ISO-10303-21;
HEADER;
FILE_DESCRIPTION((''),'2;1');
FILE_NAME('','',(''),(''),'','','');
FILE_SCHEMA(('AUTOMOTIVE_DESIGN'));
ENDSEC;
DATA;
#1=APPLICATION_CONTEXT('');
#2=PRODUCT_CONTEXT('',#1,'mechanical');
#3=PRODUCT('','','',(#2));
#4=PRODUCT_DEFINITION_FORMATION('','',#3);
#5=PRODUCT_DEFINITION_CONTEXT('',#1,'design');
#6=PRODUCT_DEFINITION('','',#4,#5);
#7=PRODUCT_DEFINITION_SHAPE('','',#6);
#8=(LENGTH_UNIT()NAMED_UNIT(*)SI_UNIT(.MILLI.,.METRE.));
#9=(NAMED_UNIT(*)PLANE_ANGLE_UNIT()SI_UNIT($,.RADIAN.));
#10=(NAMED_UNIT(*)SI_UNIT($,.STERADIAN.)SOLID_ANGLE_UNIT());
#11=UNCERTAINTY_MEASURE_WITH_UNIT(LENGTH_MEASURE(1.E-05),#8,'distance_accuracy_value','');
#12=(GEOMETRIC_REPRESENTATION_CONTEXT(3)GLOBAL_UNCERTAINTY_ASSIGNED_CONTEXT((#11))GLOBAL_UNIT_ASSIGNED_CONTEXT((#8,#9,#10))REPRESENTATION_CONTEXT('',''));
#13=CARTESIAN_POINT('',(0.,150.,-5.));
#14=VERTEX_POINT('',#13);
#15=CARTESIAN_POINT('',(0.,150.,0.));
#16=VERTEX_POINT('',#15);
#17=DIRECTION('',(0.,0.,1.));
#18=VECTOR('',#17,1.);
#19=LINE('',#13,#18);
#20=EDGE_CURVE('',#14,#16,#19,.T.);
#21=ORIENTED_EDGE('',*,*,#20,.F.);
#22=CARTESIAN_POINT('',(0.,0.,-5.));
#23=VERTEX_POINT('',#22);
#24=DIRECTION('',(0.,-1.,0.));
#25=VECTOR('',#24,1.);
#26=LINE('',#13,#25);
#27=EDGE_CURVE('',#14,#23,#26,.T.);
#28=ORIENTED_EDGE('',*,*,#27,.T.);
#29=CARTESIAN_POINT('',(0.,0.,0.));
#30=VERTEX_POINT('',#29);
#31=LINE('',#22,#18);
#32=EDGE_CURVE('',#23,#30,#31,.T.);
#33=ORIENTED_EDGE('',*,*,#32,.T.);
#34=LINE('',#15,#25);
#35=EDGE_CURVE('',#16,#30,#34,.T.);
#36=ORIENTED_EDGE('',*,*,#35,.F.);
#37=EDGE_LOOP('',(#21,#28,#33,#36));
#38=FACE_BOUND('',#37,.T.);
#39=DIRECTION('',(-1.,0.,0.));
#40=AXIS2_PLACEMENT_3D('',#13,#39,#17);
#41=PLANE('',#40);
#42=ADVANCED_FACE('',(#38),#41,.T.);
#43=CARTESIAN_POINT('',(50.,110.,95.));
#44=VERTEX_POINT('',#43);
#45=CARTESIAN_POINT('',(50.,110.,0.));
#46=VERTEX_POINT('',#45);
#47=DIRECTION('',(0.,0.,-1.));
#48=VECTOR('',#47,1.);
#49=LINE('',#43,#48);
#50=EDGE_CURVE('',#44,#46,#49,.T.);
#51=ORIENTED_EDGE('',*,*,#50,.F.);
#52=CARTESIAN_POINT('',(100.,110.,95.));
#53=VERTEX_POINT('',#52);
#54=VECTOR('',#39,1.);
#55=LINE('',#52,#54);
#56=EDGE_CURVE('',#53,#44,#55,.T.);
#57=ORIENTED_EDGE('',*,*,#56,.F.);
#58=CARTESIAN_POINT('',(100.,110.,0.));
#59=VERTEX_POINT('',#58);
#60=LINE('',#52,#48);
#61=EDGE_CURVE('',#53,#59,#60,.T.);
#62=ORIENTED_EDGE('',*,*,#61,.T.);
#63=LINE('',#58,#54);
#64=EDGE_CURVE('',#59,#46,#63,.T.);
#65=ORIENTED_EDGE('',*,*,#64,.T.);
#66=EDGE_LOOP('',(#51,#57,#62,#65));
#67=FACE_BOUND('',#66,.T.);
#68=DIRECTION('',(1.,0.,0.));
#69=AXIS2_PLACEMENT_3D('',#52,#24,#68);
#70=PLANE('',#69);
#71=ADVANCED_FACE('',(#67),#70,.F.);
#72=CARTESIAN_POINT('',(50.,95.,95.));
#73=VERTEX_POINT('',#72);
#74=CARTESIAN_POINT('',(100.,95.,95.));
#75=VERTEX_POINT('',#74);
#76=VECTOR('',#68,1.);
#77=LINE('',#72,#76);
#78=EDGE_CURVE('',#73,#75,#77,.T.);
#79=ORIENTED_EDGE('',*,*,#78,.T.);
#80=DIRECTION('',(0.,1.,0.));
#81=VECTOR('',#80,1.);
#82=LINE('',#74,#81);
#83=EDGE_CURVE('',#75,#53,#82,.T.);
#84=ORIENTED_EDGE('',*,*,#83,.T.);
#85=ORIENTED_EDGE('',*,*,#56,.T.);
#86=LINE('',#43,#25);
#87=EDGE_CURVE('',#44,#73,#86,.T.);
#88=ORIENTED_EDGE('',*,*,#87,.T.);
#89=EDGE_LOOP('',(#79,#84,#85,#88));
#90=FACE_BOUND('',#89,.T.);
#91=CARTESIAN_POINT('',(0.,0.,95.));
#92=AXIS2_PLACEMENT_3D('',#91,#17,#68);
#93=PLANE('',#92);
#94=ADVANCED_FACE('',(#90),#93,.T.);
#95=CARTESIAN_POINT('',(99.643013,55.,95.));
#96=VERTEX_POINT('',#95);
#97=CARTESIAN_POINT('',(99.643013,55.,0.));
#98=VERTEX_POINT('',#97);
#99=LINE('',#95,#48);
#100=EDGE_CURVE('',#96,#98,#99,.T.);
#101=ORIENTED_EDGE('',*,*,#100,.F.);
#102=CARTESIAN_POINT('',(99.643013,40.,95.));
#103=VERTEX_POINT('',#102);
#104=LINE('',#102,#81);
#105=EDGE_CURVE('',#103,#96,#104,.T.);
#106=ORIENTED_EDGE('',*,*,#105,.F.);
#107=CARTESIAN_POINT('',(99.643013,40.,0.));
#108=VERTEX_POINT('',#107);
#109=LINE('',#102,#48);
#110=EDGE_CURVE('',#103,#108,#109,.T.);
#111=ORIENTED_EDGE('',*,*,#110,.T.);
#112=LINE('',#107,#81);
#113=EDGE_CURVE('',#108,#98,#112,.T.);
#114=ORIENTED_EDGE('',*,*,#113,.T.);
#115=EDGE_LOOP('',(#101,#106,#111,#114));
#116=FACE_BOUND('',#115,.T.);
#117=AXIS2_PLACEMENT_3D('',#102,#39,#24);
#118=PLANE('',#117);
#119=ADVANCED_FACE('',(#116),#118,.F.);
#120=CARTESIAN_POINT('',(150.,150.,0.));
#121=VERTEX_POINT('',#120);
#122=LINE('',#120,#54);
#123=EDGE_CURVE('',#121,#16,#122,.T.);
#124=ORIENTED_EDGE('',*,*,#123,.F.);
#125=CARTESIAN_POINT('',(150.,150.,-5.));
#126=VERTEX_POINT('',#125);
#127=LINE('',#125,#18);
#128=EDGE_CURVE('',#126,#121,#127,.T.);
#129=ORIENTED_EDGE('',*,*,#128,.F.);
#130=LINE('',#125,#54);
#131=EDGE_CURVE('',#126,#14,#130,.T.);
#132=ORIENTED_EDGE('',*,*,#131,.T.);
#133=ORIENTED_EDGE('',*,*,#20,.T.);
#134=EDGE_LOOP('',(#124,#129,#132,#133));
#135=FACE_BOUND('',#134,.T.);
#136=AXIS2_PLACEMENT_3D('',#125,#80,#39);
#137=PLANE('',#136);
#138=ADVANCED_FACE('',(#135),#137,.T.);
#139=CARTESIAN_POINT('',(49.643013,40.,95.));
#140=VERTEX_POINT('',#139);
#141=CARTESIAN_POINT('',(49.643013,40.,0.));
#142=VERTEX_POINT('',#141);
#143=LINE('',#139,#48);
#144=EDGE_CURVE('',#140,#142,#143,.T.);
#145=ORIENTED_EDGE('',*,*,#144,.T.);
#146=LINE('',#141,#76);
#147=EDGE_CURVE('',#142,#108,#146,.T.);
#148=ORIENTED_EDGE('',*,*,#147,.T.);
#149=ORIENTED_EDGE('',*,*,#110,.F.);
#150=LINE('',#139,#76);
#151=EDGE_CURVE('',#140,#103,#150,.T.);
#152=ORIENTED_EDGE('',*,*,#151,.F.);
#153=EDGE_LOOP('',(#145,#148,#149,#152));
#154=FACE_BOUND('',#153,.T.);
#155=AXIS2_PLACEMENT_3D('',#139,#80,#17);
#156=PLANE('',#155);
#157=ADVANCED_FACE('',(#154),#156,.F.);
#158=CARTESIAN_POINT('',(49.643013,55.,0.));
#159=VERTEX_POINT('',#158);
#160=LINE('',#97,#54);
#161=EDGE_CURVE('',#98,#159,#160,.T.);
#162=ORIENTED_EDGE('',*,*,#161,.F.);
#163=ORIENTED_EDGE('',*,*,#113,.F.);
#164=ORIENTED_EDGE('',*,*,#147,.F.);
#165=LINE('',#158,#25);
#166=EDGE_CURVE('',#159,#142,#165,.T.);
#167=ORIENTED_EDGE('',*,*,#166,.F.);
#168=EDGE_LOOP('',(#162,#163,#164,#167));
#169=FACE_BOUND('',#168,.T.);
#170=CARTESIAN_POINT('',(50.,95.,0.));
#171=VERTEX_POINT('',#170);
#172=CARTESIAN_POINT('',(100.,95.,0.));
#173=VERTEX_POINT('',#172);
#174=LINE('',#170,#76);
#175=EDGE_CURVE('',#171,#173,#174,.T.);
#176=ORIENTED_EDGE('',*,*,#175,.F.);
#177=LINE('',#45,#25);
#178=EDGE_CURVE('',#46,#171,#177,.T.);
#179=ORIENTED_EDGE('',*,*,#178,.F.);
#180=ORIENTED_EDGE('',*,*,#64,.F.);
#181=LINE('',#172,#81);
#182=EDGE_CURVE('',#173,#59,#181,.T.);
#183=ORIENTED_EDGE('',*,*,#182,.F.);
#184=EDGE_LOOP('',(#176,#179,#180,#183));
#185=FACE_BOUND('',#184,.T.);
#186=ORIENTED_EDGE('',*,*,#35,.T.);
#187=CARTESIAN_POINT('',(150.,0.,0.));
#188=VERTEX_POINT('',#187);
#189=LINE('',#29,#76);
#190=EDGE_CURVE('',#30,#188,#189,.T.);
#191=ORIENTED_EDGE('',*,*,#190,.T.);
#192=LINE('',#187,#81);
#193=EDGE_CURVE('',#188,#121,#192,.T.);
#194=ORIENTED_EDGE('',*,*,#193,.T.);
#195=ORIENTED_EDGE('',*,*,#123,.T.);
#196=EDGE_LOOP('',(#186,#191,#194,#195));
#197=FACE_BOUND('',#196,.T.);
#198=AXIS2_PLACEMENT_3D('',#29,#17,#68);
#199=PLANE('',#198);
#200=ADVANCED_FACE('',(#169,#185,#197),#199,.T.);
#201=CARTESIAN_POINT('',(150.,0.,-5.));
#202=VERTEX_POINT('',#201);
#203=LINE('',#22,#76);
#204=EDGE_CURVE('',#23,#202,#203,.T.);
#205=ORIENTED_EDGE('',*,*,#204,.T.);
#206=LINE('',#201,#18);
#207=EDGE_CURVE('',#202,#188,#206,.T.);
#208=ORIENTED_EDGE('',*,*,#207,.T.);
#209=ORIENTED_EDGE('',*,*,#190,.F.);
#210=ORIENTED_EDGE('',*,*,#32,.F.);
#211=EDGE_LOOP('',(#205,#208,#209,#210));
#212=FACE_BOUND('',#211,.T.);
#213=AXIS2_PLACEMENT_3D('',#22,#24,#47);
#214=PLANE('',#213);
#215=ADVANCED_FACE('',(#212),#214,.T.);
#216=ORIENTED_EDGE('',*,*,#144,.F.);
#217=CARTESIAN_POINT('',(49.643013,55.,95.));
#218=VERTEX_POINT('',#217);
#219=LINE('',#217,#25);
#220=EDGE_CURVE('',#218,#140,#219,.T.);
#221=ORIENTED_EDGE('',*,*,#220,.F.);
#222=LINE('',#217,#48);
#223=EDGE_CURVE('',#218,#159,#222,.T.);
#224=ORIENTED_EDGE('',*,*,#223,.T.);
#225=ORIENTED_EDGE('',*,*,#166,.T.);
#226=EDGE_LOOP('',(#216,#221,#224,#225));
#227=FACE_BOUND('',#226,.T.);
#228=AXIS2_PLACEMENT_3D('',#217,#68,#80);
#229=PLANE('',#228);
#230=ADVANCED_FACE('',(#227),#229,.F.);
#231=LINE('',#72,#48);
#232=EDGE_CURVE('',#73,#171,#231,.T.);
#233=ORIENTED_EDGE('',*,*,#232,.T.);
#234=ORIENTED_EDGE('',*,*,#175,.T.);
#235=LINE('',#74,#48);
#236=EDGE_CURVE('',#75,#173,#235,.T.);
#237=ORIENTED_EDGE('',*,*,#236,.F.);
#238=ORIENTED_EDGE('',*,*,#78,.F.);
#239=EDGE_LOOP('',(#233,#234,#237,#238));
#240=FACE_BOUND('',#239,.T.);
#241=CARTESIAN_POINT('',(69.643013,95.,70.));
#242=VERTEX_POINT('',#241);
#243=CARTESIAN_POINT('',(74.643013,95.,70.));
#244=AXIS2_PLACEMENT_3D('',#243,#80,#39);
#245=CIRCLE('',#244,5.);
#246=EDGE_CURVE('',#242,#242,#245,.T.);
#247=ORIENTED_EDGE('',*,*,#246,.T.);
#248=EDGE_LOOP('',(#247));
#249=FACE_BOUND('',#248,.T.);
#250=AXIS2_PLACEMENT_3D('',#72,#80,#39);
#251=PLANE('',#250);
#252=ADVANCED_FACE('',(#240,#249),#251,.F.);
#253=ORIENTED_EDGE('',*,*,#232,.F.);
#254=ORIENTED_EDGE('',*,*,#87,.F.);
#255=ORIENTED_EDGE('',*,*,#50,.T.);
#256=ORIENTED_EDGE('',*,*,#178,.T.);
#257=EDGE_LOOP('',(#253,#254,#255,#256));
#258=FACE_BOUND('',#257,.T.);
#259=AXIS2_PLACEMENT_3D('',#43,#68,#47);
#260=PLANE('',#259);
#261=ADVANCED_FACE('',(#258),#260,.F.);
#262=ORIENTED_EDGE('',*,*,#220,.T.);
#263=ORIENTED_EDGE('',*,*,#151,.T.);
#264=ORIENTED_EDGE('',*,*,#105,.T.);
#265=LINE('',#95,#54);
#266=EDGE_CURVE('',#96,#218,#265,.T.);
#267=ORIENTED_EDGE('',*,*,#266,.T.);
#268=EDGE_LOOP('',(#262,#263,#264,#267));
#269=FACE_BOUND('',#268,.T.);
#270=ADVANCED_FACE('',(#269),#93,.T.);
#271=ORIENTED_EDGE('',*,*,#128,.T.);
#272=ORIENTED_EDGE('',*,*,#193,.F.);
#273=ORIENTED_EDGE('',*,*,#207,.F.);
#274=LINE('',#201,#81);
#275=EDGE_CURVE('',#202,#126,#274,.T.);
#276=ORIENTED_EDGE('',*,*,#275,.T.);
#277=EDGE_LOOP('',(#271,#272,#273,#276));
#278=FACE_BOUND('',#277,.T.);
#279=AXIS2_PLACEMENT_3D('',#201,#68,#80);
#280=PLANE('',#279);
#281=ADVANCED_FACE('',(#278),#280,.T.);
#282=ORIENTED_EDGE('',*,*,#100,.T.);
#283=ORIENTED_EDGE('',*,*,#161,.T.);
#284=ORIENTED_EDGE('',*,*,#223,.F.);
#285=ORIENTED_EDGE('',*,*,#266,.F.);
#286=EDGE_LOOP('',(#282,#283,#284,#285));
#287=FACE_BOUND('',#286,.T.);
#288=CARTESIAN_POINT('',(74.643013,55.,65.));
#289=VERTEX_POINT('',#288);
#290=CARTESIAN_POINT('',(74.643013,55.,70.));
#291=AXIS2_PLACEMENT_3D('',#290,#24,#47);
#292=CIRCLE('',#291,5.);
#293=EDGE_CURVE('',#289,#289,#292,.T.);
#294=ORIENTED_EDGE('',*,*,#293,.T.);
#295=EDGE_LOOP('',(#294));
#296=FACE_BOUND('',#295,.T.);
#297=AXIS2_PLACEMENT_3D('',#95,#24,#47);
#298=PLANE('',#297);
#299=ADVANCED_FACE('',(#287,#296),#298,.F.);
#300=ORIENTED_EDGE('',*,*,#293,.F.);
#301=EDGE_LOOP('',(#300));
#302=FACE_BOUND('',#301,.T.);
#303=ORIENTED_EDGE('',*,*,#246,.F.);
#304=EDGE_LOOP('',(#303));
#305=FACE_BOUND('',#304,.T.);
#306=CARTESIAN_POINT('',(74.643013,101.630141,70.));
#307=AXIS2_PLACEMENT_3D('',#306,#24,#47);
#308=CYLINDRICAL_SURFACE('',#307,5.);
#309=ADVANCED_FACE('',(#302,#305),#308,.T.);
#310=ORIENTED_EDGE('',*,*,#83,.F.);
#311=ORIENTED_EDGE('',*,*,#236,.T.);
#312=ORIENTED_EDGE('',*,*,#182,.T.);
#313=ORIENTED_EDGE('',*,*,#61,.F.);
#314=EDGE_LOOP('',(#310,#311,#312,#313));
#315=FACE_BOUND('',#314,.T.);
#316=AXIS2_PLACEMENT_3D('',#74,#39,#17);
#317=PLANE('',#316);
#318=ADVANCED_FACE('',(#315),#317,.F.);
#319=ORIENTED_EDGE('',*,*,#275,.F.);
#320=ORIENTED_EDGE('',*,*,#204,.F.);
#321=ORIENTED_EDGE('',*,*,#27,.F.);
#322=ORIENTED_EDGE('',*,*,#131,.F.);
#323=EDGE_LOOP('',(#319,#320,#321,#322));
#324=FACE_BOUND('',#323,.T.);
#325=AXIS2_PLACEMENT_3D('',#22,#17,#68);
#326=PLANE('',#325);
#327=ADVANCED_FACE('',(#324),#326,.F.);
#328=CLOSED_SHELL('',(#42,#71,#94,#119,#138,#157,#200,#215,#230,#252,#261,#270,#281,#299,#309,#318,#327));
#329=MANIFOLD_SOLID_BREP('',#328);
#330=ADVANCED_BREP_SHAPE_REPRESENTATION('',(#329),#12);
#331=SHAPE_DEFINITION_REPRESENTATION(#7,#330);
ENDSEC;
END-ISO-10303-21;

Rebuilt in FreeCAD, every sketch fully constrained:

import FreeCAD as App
import Part
import Sketcher
Q = App.Units.Quantity


def add_polygon(sketch, points):
    """Adds a closed chain of lines whose ends are joined by coincident constraints."""
    first, n = sketch.GeometryCount, len(points)
    for a, b in zip(points, points[1:] + points[:1]):
        sketch.addGeometry(Part.LineSegment(App.Vector(*a, 0), App.Vector(*b, 0)), False)
    for i in range(n):
        sketch.addConstraint(Sketcher.Constraint("Coincident", first + i, 2, first + (i + 1) % n, 1))

doc = App.newDocument("Part")
params = doc.addObject("Spreadsheet::Sheet", "Params")
for row, (alias, value) in enumerate([
    ("sketch1_width", "150 mm"),
    ("pad1_length", "5 mm"),
    ("sketch2_width", "50 mm"),
    ("sketch2_height", "15 mm"),
    ("pad2_length", "95 mm"),
    ("sketch3_diameter", "10 mm"),
    ("pad3_length", "61.630141 mm"),
], start=1):
    params.set(f"A{row}", alias)
    params.set(f"B{row}", "=" + value)
    params.setAlias(f"B{row}", alias)

body = doc.addObject("PartDesign::Body", "Body")

# Sketch on XY plane
sketch1 = body.newObject("Sketcher::SketchObject", "Sketch")
sketch1.AttachmentSupport = (doc.getObject("XY_Plane"), [""])
sketch1.MapMode = "FlatFace"
add_polygon(sketch1, [(0, 150), (0, 0), (150, 0), (150, 150)])  # lines 0-3
sketch1.addConstraint(Sketcher.Constraint("Vertical", 0))
sketch1.addConstraint(Sketcher.Constraint("Horizontal", 1))
sketch1.addConstraint(Sketcher.Constraint("Vertical", 2))
sketch1.addConstraint(Sketcher.Constraint("Horizontal", 3))
sketch1.addConstraint(Sketcher.Constraint("Coincident", 0, 2, -1, 1))
sketch1.addConstraint(Sketcher.Constraint("Equal", 3, 0))
sketch1.addConstraint(Sketcher.Constraint("DistanceX", 1, 1, 1, 2, Q("150 mm")))
sketch1.setExpression("Constraints[10]", "Params.sketch1_width")
pad1 = body.newObject("PartDesign::Pad", "Pad")
pad1.Profile = sketch1
pad1.setExpression("Length", "Params.pad1_length")
pad1.Reversed = True

# Sketch on XY plane
sketch2 = body.newObject("Sketcher::SketchObject", "Sketch001")
sketch2.AttachmentSupport = (doc.getObject("XY_Plane"), [""])
sketch2.MapMode = "FlatFace"
add_polygon(sketch2, [(50, 55), (50, 40), (100, 40), (100, 55)])  # lines 0-3
add_polygon(sketch2, [(50, 110), (50, 95), (100, 95), (100, 110)])  # lines 4-7
sketch2.addConstraint(Sketcher.Constraint("Vertical", 0))
sketch2.addConstraint(Sketcher.Constraint("Horizontal", 1))
sketch2.addConstraint(Sketcher.Constraint("Vertical", 2))
sketch2.addConstraint(Sketcher.Constraint("Horizontal", 3))
sketch2.addConstraint(Sketcher.Constraint("Vertical", 4))
sketch2.addConstraint(Sketcher.Constraint("Horizontal", 5))
sketch2.addConstraint(Sketcher.Constraint("Vertical", 6))
sketch2.addConstraint(Sketcher.Constraint("Horizontal", 7))
sketch2.addConstraint(Sketcher.Constraint("Equal", 3, 5))
sketch2.addConstraint(Sketcher.Constraint("Equal", 2, 4))
sketch2.addConstraint(Sketcher.Constraint("DistanceX", 1, 1, 1, 2, Q("50 mm")))
sketch2.addConstraint(Sketcher.Constraint("DistanceY", 0, 2, 0, 1, Q("15 mm")))
sketch2.addConstraint(Sketcher.Constraint("DistanceY", -1, 1, 0, 2, Q("40 mm")))
sketch2.addConstraint(Sketcher.Constraint("DistanceX", -1, 1, 4, 2, Q("50 mm")))
sketch2.addConstraint(Sketcher.Constraint("DistanceY", -1, 1, 4, 2, Q("95 mm")))
sketch2.addConstraint(Sketcher.Constraint("DistanceX", -1, 1, 0, 2, Q("49.643013 mm")))
sketch2.setExpression("Constraints[18]", "Params.sketch2_width")
sketch2.setExpression("Constraints[19]", "Params.sketch2_height")
pad2 = body.newObject("PartDesign::Pad", "Pad001")
pad2.Profile = sketch2
pad2.setExpression("Length", "Params.pad2_length")

# Sketch on XZ plane
sketch3 = body.newObject("Sketcher::SketchObject", "Sketch002")
sketch3.AttachmentSupport = (doc.getObject("XZ_Plane"), [""])
sketch3.MapMode = "FlatFace"
sketch3.AttachmentOffset = App.Placement(App.Vector(0, 0, -40), App.Rotation())
sketch3.addGeometry(Part.Circle(App.Vector(75, 70, 0), App.Vector(0, 0, 1), 5), False)
sketch3.addConstraint(Sketcher.Constraint("Diameter", 0, Q("10 mm")))
sketch3.addConstraint(Sketcher.Constraint("DistanceY", -1, 1, 0, 3, Q("70 mm")))
sketch3.addConstraint(Sketcher.Constraint("DistanceX", -1, 1, 0, 3, Q("74.643013 mm")))
sketch3.setExpression("Constraints[0]", "Params.sketch3_diameter")
pad3 = body.newObject("PartDesign::Pad", "Pad002")
pad3.Profile = sketch3
pad3.setExpression("Length", "Params.pad3_length")
pad3.Reversed = True

doc.recompute()
